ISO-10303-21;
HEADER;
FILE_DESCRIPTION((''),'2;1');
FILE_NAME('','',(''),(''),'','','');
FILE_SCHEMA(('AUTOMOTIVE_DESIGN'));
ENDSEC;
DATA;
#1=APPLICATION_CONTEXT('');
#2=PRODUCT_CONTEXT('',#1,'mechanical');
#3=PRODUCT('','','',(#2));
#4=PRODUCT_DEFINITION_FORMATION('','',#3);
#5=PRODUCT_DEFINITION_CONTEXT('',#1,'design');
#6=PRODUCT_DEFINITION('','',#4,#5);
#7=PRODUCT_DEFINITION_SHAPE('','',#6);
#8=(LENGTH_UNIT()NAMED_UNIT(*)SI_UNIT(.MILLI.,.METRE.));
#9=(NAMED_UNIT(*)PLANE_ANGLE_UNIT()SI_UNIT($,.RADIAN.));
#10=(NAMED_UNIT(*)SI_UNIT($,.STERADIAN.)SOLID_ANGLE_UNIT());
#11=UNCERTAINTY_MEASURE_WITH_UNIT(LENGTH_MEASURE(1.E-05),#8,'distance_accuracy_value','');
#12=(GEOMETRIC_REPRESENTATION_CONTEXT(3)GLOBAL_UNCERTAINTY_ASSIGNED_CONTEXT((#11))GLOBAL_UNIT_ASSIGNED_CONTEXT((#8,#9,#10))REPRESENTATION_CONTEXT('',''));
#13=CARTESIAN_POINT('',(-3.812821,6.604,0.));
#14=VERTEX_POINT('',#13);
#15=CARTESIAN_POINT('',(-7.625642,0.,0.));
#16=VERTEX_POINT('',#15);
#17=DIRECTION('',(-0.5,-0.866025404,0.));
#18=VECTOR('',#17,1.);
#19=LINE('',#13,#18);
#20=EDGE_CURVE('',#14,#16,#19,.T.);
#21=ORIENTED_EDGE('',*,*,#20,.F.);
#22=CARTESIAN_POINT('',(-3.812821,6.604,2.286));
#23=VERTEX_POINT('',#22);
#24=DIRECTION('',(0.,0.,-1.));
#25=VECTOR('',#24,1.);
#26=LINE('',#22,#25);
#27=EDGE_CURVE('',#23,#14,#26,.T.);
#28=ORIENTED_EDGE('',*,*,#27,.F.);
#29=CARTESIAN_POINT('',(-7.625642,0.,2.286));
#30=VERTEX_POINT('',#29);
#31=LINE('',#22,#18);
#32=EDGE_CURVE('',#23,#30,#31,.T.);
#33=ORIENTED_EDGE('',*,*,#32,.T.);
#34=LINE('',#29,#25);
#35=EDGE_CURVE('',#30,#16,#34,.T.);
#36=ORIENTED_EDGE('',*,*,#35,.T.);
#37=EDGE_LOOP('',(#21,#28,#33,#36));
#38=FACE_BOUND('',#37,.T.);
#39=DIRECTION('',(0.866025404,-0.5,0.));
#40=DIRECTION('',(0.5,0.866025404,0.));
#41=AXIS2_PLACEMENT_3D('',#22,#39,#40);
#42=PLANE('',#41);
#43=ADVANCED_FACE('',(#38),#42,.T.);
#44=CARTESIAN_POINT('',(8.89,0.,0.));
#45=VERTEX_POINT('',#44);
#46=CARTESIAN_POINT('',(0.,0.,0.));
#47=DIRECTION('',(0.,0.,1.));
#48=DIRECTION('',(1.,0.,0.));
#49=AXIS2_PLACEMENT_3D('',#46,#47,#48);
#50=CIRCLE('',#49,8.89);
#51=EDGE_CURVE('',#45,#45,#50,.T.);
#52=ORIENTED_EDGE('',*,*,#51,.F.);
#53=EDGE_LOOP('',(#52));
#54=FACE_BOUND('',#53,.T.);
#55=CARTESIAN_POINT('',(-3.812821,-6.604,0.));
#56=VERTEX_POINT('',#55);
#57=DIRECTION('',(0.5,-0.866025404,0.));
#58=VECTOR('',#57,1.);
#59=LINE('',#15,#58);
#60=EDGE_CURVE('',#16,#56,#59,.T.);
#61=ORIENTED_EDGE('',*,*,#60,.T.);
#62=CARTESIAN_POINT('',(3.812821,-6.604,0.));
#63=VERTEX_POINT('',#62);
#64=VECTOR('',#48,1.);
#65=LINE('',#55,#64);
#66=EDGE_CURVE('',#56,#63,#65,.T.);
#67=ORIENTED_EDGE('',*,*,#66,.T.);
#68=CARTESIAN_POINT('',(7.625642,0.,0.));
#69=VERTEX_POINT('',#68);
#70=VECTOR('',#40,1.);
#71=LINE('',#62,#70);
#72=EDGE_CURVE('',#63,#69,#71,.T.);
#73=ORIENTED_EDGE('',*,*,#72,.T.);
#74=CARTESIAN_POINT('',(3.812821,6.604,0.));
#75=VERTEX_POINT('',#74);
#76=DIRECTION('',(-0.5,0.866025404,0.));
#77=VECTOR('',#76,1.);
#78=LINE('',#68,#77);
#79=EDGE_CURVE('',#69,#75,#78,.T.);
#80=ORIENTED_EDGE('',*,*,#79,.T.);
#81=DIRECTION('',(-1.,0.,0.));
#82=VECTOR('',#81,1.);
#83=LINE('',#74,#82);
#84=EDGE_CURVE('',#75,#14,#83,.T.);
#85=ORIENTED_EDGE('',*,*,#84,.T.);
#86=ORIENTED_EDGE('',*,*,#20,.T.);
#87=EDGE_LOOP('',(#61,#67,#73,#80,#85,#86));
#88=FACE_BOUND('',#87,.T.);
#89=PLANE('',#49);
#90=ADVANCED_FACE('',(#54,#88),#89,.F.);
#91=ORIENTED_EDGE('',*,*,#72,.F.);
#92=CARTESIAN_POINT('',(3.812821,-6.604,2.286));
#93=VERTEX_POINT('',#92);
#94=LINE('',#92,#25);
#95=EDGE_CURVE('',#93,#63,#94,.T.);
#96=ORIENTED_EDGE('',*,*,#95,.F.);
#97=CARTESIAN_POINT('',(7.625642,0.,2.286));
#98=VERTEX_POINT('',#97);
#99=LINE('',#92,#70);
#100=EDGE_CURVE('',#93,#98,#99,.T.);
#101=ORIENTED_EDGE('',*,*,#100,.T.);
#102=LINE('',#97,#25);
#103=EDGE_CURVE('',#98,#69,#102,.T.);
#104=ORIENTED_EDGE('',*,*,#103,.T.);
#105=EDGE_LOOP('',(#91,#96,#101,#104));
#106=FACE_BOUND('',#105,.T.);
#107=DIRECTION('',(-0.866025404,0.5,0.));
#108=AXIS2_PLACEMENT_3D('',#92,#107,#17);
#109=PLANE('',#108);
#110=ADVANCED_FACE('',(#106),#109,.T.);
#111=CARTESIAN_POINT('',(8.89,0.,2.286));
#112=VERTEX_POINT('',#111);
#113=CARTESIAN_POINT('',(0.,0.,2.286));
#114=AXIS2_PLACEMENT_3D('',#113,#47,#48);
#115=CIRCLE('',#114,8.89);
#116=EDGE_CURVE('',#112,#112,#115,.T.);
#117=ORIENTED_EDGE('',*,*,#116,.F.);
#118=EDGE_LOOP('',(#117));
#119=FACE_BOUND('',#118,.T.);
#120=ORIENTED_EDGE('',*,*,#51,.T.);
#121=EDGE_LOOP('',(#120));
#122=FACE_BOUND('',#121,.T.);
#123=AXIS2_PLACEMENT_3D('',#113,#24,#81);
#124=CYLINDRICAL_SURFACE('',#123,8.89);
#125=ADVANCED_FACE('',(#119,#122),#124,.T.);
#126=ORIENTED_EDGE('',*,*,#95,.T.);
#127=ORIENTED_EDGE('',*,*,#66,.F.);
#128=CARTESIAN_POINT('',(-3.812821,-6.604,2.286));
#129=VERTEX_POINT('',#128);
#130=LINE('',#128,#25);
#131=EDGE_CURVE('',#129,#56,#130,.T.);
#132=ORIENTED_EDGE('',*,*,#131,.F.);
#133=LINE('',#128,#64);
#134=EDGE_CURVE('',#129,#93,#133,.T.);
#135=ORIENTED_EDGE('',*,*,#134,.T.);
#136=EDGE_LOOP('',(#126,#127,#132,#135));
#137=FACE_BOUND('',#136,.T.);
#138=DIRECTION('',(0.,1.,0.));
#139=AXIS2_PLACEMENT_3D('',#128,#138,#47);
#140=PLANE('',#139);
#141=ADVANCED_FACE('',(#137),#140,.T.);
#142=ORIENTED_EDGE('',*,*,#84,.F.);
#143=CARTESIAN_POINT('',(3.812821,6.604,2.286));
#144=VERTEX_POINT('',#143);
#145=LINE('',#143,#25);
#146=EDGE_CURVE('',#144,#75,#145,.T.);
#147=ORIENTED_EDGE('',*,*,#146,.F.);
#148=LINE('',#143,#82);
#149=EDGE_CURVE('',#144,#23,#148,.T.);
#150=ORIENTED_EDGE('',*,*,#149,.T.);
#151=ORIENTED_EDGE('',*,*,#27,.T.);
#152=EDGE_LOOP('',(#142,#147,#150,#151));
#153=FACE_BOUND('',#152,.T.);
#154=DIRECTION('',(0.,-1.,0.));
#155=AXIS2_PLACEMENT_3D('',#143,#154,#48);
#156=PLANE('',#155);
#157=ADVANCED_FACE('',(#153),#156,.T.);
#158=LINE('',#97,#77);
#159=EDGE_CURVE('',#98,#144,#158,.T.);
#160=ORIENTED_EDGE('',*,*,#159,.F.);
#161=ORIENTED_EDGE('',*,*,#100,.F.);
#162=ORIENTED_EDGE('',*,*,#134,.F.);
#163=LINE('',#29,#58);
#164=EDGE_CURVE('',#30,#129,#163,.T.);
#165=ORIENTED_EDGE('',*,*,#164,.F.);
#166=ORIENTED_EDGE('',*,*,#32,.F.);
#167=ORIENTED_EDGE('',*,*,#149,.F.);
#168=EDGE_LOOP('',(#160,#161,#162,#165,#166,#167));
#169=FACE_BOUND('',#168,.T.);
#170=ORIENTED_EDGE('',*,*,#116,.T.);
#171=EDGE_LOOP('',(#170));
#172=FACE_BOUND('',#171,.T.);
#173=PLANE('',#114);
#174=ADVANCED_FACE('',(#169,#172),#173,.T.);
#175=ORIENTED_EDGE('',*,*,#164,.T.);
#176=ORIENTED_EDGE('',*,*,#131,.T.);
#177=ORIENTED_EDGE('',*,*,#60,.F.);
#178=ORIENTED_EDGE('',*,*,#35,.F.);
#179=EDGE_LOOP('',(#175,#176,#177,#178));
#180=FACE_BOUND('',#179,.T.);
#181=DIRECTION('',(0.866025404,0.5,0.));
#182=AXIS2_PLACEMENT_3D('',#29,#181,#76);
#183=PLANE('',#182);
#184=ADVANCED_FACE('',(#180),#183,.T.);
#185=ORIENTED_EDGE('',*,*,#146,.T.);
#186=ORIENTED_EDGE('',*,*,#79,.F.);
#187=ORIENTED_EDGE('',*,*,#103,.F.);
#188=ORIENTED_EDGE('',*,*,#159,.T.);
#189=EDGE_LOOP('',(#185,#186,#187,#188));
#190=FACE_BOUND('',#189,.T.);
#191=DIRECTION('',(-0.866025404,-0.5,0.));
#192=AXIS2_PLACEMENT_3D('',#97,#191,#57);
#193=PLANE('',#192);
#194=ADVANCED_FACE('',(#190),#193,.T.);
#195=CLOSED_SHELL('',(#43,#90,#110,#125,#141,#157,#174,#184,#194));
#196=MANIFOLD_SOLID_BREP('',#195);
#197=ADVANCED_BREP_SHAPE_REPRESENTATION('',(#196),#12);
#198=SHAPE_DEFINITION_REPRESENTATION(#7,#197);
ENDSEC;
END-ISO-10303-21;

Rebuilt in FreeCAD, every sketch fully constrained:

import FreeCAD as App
import Part
import Sketcher

V = App.Vector
Q = App.Units.Quantity


def add_polygon(sketch, points):
    """Adds a closed chain of lines whose ends are joined by coincident constraints."""
    first, n = sketch.GeometryCount, len(points)
    for a, b in zip(points, points[1:] + points[:1]):
        sketch.addGeometry(Part.LineSegment(App.Vector(*a, 0), App.Vector(*b, 0)), False)
    for i in range(n):
        sketch.addConstraint(Sketcher.Constraint("Coincident", first + i, 2, first + (i + 1) % n, 1))

doc = App.newDocument("Part")
body = doc.addObject("PartDesign::Body", "Body")

sketch1 = body.newObject("Sketcher::SketchObject", "Sketch")
sketch1.AttachmentSupport = (doc.getObject("XY_Plane"), [""])
sketch1.MapMode = "FlatFace"
sketch1.addGeometry(Part.Circle(V(0, 0, 0), V(0, 0, 1), 9), False)
add_polygon(sketch1, [(4, 7), (8, 0), (4, -7), (-4, -7), (-8, 0), (-4, 7)])
sketch1.addConstraint(Sketcher.Constraint("Horizontal", 3))
sketch1.addConstraint(Sketcher.Constraint("Horizontal", 6))
sketch1.addConstraint(Sketcher.Constraint("Coincident", 0, 3, -1, 1))
sketch1.addConstraint(Sketcher.Constraint("Symmetric", 1, 2, 4, 2, -1, 1))
sketch1.addConstraint(Sketcher.Constraint("Symmetric", 2, 2, 5, 2, -1, 1))
sketch1.addConstraint(Sketcher.Constraint("PointOnObject", 1, 2, -1))
sketch1.addConstraint(Sketcher.Constraint("Parallel", 1, 4))
sketch1.addConstraint(Sketcher.Constraint("Vertical", 3, 2, 5, 2))
sketch1.addConstraint(Sketcher.Constraint("Diameter", 0, Q("0.7 in")))
sketch1.addConstraint(Sketcher.Constraint("Angle", 1, Q("-60 deg")))
sketch1.addConstraint(Sketcher.Constraint("DistanceY", 2, 2, -1, 1, Q("0.26 in")))
sketch1.addConstraint(Sketcher.Constraint("DistanceX", 3, 2, 3, 1, 7.625642))
pad1 = body.newObject("PartDesign::Pad", "Pad")
pad1.Profile = sketch1
pad1.Length = Q("0.09 in")

doc.recompute()
